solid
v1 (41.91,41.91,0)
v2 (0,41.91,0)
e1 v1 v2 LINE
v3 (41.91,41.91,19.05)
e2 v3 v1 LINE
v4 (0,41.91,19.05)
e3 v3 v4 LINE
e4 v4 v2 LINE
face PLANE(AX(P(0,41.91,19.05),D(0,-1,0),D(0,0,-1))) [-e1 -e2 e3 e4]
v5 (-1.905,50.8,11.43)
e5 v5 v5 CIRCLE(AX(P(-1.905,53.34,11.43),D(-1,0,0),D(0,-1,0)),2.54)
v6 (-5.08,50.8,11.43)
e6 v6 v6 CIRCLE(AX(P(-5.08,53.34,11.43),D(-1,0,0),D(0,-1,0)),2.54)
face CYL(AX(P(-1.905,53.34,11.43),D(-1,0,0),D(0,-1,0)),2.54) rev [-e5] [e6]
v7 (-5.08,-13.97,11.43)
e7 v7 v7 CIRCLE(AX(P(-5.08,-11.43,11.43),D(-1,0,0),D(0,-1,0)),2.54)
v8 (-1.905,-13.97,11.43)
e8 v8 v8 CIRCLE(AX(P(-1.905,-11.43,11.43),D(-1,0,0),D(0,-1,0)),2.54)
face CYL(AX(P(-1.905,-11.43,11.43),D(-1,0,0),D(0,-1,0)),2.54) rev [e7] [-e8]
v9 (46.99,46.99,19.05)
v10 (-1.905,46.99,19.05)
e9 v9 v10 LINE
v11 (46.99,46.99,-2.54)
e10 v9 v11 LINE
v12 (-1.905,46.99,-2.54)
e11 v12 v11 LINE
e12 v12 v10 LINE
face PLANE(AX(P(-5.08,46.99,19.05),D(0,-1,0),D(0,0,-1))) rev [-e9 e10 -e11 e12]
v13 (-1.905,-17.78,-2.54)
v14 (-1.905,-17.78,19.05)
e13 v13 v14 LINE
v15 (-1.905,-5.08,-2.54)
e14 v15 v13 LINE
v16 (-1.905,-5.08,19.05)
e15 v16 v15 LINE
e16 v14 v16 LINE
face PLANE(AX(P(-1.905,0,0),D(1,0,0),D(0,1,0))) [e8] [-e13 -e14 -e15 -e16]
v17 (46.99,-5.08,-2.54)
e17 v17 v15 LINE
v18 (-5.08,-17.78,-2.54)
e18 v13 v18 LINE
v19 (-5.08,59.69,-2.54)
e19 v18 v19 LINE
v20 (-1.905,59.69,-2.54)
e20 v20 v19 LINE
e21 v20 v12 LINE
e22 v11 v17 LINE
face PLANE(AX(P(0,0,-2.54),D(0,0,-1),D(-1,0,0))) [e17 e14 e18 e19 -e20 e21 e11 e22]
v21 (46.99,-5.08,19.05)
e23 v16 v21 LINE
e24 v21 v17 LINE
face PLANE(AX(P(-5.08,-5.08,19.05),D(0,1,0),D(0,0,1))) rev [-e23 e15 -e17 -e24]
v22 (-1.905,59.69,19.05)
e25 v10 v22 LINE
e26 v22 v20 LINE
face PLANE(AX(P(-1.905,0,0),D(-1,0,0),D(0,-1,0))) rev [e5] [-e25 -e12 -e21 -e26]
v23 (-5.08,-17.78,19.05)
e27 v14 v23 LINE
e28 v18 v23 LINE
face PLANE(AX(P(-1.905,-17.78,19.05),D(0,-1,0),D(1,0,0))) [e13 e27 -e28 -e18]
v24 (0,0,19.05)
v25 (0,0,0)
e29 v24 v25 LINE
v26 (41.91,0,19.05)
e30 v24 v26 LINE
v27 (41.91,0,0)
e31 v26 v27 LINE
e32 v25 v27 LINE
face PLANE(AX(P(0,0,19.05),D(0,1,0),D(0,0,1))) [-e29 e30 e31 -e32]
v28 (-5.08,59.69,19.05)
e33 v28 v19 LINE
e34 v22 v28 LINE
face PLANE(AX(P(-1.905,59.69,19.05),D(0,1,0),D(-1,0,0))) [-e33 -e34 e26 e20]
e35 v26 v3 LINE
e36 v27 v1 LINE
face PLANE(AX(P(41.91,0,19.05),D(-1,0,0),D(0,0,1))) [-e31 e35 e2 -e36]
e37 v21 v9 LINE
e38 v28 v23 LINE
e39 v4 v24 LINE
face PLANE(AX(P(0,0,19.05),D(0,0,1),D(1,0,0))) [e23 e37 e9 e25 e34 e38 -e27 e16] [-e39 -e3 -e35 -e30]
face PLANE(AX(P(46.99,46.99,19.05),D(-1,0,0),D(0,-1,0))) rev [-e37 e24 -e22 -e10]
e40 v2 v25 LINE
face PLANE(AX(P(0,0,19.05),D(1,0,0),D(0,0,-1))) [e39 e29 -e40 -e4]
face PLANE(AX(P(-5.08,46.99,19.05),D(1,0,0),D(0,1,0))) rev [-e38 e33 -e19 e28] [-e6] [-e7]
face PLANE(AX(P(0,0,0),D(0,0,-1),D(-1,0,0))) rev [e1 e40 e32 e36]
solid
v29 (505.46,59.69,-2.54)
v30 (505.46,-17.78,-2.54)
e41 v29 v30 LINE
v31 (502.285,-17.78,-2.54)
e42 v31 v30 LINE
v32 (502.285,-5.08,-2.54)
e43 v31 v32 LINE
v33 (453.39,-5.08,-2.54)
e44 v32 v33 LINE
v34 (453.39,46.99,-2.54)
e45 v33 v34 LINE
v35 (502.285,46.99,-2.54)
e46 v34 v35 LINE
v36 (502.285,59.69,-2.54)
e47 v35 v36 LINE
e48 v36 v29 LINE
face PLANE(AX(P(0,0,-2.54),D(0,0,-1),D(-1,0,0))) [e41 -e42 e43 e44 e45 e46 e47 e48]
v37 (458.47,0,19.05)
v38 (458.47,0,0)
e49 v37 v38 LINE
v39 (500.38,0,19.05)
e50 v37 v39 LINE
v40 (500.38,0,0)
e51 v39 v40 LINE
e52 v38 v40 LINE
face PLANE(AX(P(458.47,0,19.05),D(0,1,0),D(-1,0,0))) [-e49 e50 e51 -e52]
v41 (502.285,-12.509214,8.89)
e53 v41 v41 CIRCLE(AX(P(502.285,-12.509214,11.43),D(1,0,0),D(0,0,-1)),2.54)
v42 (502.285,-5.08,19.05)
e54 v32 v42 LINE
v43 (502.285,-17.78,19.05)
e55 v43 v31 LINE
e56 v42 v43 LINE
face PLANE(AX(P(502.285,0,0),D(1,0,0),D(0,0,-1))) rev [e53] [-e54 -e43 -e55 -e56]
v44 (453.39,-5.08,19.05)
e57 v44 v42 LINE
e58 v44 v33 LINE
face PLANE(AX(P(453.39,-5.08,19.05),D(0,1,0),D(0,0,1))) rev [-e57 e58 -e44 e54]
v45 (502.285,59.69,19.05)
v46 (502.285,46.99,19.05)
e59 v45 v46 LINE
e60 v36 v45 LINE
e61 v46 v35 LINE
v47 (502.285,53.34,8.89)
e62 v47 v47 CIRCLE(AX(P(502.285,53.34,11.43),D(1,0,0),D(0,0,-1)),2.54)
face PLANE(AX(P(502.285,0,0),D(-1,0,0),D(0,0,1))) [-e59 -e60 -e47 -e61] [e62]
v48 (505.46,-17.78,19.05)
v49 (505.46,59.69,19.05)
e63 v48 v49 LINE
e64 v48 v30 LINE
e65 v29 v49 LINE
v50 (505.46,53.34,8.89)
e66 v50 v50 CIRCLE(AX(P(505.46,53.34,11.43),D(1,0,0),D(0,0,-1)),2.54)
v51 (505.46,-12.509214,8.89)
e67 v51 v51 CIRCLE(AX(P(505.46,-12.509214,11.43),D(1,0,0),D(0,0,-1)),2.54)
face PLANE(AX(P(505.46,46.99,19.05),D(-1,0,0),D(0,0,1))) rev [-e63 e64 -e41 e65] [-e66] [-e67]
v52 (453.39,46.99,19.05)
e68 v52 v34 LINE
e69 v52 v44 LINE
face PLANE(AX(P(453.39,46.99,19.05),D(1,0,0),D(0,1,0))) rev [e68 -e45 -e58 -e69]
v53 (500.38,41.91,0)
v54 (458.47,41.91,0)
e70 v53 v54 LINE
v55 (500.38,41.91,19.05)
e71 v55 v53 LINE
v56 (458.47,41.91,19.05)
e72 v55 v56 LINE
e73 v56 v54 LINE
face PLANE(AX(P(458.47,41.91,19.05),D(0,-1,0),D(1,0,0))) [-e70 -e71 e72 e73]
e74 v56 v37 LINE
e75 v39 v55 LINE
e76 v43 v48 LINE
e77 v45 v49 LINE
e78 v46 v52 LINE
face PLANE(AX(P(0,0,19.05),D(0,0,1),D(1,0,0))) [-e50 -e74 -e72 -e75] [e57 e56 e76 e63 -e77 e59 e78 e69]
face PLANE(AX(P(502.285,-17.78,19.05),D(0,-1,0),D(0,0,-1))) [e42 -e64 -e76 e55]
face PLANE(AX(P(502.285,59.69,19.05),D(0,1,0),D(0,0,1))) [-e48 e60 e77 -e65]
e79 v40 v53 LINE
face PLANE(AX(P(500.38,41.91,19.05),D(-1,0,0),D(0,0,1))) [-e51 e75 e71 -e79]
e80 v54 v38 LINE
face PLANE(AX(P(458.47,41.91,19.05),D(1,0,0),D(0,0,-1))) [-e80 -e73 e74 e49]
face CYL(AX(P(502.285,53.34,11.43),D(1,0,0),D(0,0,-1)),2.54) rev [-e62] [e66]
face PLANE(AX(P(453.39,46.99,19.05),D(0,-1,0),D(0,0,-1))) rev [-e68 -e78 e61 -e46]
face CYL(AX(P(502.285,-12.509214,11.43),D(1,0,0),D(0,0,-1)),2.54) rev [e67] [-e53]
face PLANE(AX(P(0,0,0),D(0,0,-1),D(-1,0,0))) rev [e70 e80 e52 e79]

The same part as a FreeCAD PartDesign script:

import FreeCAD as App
import Part
import Sketcher
Q = App.Units.Quantity


def add_polygon(sketch, points):
    """Adds a closed chain of lines whose ends are joined by coincident constraints."""
    first, n = sketch.GeometryCount, len(points)
    for a, b in zip(points, points[1:] + points[:1]):
        sketch.addGeometry(Part.LineSegment(App.Vector(*a, 0), App.Vector(*b, 0)), False)
    for i in range(n):
        sketch.addConstraint(Sketcher.Constraint("Coincident", first + i, 2, first + (i + 1) % n, 1))

doc = App.newDocument("Part")
body = doc.addObject("PartDesign::Body", "Body")

# Sketch on XY plane
sketch1 = body.newObject("Sketcher::SketchObject", "Sketch")
sketch1.AttachmentSupport = (doc.getObject("XY_Plane"), [""])
sketch1.MapMode = "FlatFace"
add_polygon(sketch1, [(-5, 47), (-5, -5), (47, -5), (47, 47)])  # lines 0-3
add_polygon(sketch1, [(42, 0), (0, 0), (0, 42), (42, 42)])  # lines 4-7
sketch1.addConstraint([
    Sketcher.Constraint("Vertical", 0),
    Sketcher.Constraint("Horizontal", 1),
    Sketcher.Constraint("Vertical", 2),
    Sketcher.Constraint("Horizontal", 3),
    Sketcher.Constraint("Horizontal", 4),
    Sketcher.Constraint("Vertical", 5),
    Sketcher.Constraint("Horizontal", 6),
    Sketcher.Constraint("Vertical", 7),
    Sketcher.Constraint("Coincident", 4, 2, -1, 1),
    Sketcher.Constraint("Equal", 3, 0),
    Sketcher.Constraint("Equal", 6, 5),
    Sketcher.Constraint("DistanceX", 1, 1, 1, 2, Q("2.05 in")),
    Sketcher.Constraint("DistanceX", 4, 2, 4, 1, Q("1.65 in")),
    Sketcher.Constraint("DistanceX", 0, 2, -1, 1, Q("0.2 in")),
    Sketcher.Constraint("DistanceY", 0, 2, -1, 1, Q("0.2 in")),
])
pad1 = body.newObject("PartDesign::Pad", "Pad")
pad1.Profile = sketch1
pad1.Length = Q("0.75 in")
body2 = doc.addObject("PartDesign::Body", "Body001")

# Sketch on XY plane
sketch2 = body2.newObject("Sketcher::SketchObject", "Sketch001")
sketch2.AttachmentSupport = (doc.getObject("XY_Plane001"), [""])
sketch2.MapMode = "FlatFace"
add_polygon(sketch2, [(453, 47), (453, -5), (505, -5), (505, 47)])  # lines 0-3
add_polygon(sketch2, [(500, 0), (458, 0), (458, 42), (500, 42)])  # lines 4-7
sketch2.addConstraint([
    Sketcher.Constraint("Vertical", 0),
    Sketcher.Constraint("Horizontal", 1),
    Sketcher.Constraint("Vertical", 2),
    Sketcher.Constraint("Horizontal", 3),
    Sketcher.Constraint("Horizontal", 4),
    Sketcher.Constraint("Vertical", 5),
    Sketcher.Constraint("Horizontal", 6),
    Sketcher.Constraint("Vertical", 7),
    Sketcher.Constraint("PointOnObject", 4, 2, -1),
    Sketcher.Constraint("Equal", 3, 0),
    Sketcher.Constraint("Equal", 6, 5),
    Sketcher.Constraint("DistanceX", 1, 1, 1, 2, Q("2.05 in")),
    Sketcher.Constraint("DistanceX", 4, 2, 4, 1, Q("1.65 in")),
    Sketcher.Constraint("DistanceY", 0, 2, -1, 1, Q("0.2 in")),
    Sketcher.Constraint("DistanceX", -1, 1, 1, 2, Q("19.9 in")),
    Sketcher.Constraint("DistanceX", -1, 1, 6, 2, Q("19.7 in")),
])
pad2 = body2.newObject("PartDesign::Pad", "Pad001")
pad2.Profile = sketch2
pad2.Length = Q("0.75 in")
body.AllowCompound = True
doc.recompute()

boolean = body.newObject("PartDesign::Boolean", "Boolean")
boolean.Type = "Fuse"
boolean.addObjects([body2])

# Sketch on XY plane
sketch3 = body.newObject("Sketcher::SketchObject", "Sketch002")
sketch3.AttachmentSupport = (doc.getObject("XY_Plane"), [""])
sketch3.MapMode = "FlatFace"
add_polygon(sketch3, [(47, 47), (47, -5), (-5, -5), (-5, 47)])  # lines 0-3
add_polygon(sketch3, [(505, 47), (505, -5), (453, -5), (453, 47)])  # lines 4-7
sketch3.addConstraint([
    Sketcher.Constraint("Vertical", 0),
    Sketcher.Constraint("Horizontal", 1),
    Sketcher.Constraint("Vertical", 2),
    Sketcher.Constraint("Horizontal", 3),
    Sketcher.Constraint("Vertical", 4),
    Sketcher.Constraint("Horizontal", 5),
    Sketcher.Constraint("Vertical", 6),
    Sketcher.Constraint("Horizontal", 7),
    Sketcher.Constraint("Horizontal", 1, 2, 4, 2),
    Sketcher.Constraint("Horizontal", 3, 2, 6, 2),
    Sketcher.Constraint("Equal", 3, 5),
    Sketcher.Constraint("Equal", 7, 0),
    Sketcher.Constraint("DistanceX", 0, 2, 5, 2, Q("16 in")),
    Sketcher.Constraint("DistanceX", 1, 2, 1, 1, Q("2.05 in")),
    Sketcher.Constraint("DistanceY", 0, 2, -1, 1, Q("0.2 in")),
    Sketcher.Constraint("DistanceX", 1, 2, -1, 1, Q("0.2 in")),
])
pad3 = body.newObject("PartDesign::Pad", "Pad002")
pad3.Profile = sketch3
pad3.Length = Q("0.1 in")
pad3.Reversed = True

# Sketch on YZ plane
sketch4 = body.newObject("Sketcher::SketchObject", "Sketch003")
sketch4.AttachmentSupport = (doc.getObject("YZ_Plane"), [""])
sketch4.MapMode = "FlatFace"
sketch4.AttachmentOffset = App.Placement(App.Vector(0, 0, -0.2 * 25.4), App.Rotation())
add_polygon(sketch4, [(-5.1, -2.5), (-17.8, -2.5), (-17.8, 19.1), (-5.1, 19.1)])  # lines 0-3
sketch4.addGeometry(Part.Circle(App.Vector(-11.4, 11.4, 0), App.Vector(0, 0, 1), 2.5), False)  # 4
add_polygon(sketch4, [(59.7, -2.5), (47, -2.5), (47, 19.1), (59.7, 19.1)])  # lines 5-8
sketch4.addGeometry(Part.Circle(App.Vector(53.3, 11.4, 0), App.Vector(0, 0, 1), 2.5), False)  # 9
sketch4.addConstraint([
    Sketcher.Constraint("Horizontal", 0),
    Sketcher.Constraint("Vertical", 1),
    Sketcher.Constraint("Horizontal", 2),
    Sketcher.Constraint("Vertical", 3),
    Sketcher.Constraint("Horizontal", 5),
    Sketcher.Constraint("Vertical", 6),
    Sketcher.Constraint("Horizontal", 7),
    Sketcher.Constraint("Vertical", 8),
    Sketcher.Constraint("Equal", 4, 9),
    Sketcher.Constraint("Horizontal", 4, 3, 9, 3),
    Sketcher.Constraint("Horizontal", 3, 2, 5, 2),
    Sketcher.Constraint("Horizontal", 2, 2, 6, 2),
    Sketcher.Constraint("Equal", 2, 5),
    Sketcher.Constraint("Diameter", 4, Q("0.2 in")),
    Sketcher.Constraint("DistanceX", 0, 2, 0, 1, Q("0.5 in")),
    Sketcher.Constraint("DistanceY", 1, 1, 1, 2, Q("0.85 in")),
    Sketcher.Constraint("DistanceX", -1, 1, 9, 3, Q("2.1 in")),
    Sketcher.Constraint("DistanceX", 0, 2, -1, 1, Q("0.7 in")),
    Sketcher.Constraint("DistanceY", 0, 2, -1, 1, Q("0.1 in")),
    Sketcher.Constraint("DistanceY", 4, 3, 1, 2, Q("0.3 in")),
    Sketcher.Constraint("DistanceX", 4, 3, 5, 2, Q("2.3 in")),
    Sketcher.Constraint("DistanceX", 4, 3, -1, 1, Q("0.45 in")),
])
pad4 = body.newObject("PartDesign::Pad", "Pad003")
pad4.Profile = sketch4
pad4.Length = Q("0.125 in")

# Sketch on YZ plane
sketch5 = body.newObject("Sketcher::SketchObject", "Sketch004")
sketch5.AttachmentSupport = (doc.getObject("YZ_Plane"), [""])
sketch5.MapMode = "FlatFace"
sketch5.AttachmentOffset = App.Placement(App.Vector(0, 0, 19.9 * 25.4), App.Rotation())
add_polygon(sketch5, [(-5.1, 19.1), (-17.8, 19.1), (-17.8, -2.5), (-5.1, -2.5)])  # lines 0-3
sketch5.addGeometry(Part.Circle(App.Vector(-12.5, 11.4, 0), App.Vector(0, 0, 1), 2.5), False)  # 4
add_polygon(sketch5, [(59.7, 19.1), (47, 19.1), (47, -2.5), (59.7, -2.5)])  # lines 5-8
sketch5.addGeometry(Part.Circle(App.Vector(53.3, 11.4, 0), App.Vector(0, 0, 1), 2.5), False)  # 9
sketch5.addConstraint([
    Sketcher.Constraint("Horizontal", 0),
    Sketcher.Constraint("Vertical", 1),
    Sketcher.Constraint("Horizontal", 2),
    Sketcher.Constraint("Vertical", 3),
    Sketcher.Constraint("Horizontal", 5),
    Sketcher.Constraint("Vertical", 6),
    Sketcher.Constraint("Horizontal", 7),
    Sketcher.Constraint("Vertical", 8),
    Sketcher.Constraint("Equal", 4, 9),
    Sketcher.Constraint("Horizontal", 4, 3, 9, 3),
    Sketcher.Constraint("Horizontal", 3, 2, 5, 2),
    Sketcher.Constraint("Horizontal", 2, 2, 6, 2),
    Sketcher.Constraint("Equal", 2, 5),
    Sketcher.Constraint("Diameter", 4, Q("0.2 in")),
    Sketcher.Constraint("DistanceX", 0, 2, 0, 1, Q("0.5 in")),
    Sketcher.Constraint("DistanceY", 1, 2, 1, 1, Q("0.85 in")),
    Sketcher.Constraint("DistanceX", -1, 1, 9, 3, Q("2.1 in")),
    Sketcher.Constraint("DistanceX", 0, 2, -1, 1, Q("0.7 in")),
    Sketcher.Constraint("DistanceY", 1, 2, -1, 1, Q("0.1 in")),
    Sketcher.Constraint("DistanceY", 4, 3, 0, 2, Q("0.3 in")),
    Sketcher.Constraint("DistanceX", -1, 1, 5, 2, Q("1.85 in")),
    Sketcher.Constraint("DistanceX", 4, 3, -1, 1, Q("12.509214 mm")),
])
pad5 = body.newObject("PartDesign::Pad", "Pad004")
pad5.Profile = sketch5
pad5.Length = Q("0.125 in")
pad5.Reversed = True

doc.recompute()
